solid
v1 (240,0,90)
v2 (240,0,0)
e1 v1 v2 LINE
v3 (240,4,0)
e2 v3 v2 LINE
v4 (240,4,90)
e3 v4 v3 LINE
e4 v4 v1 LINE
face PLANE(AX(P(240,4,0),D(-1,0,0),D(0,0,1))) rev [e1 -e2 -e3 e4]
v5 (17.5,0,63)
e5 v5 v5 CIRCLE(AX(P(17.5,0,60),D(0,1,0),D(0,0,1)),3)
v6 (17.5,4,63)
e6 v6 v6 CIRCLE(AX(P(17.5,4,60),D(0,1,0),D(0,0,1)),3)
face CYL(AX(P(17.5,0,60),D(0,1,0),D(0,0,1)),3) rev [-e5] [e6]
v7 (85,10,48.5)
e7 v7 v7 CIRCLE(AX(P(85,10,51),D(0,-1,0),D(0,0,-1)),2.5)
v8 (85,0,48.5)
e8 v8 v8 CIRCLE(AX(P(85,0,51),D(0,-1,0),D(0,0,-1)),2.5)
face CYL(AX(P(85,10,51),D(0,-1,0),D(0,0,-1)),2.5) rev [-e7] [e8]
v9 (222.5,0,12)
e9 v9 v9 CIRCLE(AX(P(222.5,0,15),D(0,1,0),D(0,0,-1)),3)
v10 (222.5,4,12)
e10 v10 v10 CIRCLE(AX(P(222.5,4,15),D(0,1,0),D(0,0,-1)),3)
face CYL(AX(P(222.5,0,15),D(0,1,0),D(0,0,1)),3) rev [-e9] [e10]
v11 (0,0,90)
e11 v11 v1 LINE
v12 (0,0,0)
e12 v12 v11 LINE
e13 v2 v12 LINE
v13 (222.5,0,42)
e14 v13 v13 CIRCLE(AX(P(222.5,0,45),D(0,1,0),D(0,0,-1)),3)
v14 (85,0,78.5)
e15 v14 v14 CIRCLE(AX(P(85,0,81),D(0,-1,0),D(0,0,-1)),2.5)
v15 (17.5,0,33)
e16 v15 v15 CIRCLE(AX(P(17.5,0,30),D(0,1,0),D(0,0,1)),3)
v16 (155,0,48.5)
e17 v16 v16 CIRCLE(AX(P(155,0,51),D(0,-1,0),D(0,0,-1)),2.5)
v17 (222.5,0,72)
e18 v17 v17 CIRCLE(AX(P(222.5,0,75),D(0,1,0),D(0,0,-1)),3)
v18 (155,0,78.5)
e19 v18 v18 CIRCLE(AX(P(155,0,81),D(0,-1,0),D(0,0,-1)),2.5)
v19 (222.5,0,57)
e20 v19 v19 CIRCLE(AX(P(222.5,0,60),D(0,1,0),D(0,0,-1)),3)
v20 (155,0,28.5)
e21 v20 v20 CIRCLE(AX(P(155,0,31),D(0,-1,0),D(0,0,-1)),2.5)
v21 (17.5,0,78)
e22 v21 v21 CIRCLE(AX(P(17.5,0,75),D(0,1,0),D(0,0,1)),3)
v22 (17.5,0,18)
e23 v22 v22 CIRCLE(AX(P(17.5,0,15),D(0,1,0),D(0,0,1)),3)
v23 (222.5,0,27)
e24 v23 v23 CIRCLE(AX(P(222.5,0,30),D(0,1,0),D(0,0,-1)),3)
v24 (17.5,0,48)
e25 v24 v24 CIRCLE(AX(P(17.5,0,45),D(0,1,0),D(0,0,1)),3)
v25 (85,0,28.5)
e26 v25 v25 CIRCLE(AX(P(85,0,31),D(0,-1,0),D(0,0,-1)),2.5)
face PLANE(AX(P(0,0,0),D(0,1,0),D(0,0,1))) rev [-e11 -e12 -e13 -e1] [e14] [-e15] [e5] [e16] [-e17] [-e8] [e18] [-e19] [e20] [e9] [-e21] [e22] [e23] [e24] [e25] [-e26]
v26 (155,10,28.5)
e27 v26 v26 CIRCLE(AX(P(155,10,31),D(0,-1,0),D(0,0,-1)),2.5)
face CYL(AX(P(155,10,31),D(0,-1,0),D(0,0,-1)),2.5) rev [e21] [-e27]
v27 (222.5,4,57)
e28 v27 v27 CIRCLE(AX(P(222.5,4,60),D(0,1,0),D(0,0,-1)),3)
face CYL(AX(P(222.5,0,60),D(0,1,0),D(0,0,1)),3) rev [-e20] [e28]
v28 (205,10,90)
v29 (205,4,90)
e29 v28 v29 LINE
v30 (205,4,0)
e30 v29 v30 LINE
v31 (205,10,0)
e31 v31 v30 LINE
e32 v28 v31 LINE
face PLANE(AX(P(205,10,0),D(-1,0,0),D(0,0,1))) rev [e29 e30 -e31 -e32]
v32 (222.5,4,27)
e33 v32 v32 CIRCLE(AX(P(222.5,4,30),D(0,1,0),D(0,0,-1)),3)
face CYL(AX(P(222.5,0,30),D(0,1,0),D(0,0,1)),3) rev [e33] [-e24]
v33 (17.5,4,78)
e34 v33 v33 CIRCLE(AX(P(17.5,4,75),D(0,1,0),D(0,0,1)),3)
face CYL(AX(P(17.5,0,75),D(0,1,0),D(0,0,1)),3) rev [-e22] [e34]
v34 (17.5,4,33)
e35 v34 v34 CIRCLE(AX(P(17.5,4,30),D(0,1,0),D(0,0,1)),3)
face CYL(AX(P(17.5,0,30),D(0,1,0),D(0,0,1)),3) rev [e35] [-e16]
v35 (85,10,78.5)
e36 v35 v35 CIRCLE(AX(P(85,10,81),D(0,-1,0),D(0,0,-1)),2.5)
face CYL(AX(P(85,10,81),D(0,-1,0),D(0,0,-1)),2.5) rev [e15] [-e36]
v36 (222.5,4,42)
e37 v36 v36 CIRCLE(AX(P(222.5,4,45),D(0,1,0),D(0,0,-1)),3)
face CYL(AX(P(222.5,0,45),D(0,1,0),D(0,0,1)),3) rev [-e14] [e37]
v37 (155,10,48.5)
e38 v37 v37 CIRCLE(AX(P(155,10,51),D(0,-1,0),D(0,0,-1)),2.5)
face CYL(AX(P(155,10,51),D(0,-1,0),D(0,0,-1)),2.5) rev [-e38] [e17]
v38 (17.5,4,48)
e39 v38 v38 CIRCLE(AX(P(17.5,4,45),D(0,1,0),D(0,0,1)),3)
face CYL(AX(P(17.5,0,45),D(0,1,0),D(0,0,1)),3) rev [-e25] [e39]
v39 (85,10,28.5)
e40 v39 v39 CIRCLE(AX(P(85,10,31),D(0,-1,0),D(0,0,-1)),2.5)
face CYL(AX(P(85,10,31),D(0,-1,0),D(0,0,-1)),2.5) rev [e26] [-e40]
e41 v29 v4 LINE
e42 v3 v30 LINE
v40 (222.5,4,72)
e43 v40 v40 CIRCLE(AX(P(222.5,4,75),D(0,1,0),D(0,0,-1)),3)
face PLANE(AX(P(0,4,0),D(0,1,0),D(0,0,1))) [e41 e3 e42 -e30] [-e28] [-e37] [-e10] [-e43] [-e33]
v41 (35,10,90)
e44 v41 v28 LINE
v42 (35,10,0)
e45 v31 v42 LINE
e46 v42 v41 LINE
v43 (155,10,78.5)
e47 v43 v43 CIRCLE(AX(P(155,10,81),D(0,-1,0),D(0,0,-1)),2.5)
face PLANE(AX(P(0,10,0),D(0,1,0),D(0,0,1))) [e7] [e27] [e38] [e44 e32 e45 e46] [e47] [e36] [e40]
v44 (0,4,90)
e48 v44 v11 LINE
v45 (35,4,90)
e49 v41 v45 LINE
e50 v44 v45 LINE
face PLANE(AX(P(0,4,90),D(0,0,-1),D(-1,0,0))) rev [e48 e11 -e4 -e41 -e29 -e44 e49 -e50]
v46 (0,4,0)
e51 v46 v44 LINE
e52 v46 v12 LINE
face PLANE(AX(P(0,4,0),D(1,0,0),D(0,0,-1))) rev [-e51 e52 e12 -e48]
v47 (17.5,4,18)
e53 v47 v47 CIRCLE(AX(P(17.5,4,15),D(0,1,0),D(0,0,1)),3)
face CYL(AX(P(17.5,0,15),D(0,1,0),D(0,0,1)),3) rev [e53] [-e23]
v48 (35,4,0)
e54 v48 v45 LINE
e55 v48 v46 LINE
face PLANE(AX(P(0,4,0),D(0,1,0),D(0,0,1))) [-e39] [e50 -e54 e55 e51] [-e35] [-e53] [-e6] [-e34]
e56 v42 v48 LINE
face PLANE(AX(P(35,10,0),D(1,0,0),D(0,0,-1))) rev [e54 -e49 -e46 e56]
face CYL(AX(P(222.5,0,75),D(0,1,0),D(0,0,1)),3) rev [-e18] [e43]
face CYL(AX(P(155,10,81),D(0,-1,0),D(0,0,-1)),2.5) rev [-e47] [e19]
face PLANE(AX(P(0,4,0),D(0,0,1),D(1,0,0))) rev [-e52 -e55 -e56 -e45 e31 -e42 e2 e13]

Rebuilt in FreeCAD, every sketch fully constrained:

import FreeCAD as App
import Part
import Sketcher

doc = App.newDocument("Part")
params = doc.addObject("Spreadsheet::Sheet", "Params")
for row, (alias, value) in enumerate([
    ("sketch1_width", "240 mm"),
    ("sketch1_height", "90 mm"),
    ("pad1_length", "4 mm"),
    ("sketch2_width", "170 mm"),
    ("sketch2_height", "90 mm"),
    ("pad2_length", "6 mm"),
    ("sketch3_diameter", "6 mm"),
    ("sketch4_diameter", "5 mm"),
], start=1):
    params.set(f"A{row}", alias)
    params.set(f"B{row}", "=" + value)
    params.setAlias(f"B{row}", alias)

body = doc.addObject("PartDesign::Body", "Body")

# Sketch on XZ plane
sketch1 = doc.addObject("Sketcher::SketchObject", "Sketch")
body.addObject(sketch1)
sketch1.AttachmentSupport = (doc.XZ_Plane, [""])
sketch1.MapMode = "FlatFace"
sketch1.addGeometry([
    Part.LineSegment(App.Vector(0, 0, 0), App.Vector(0, 90, 0)),
    Part.LineSegment(App.Vector(0, 90, 0), App.Vector(240, 90, 0)),
    Part.LineSegment(App.Vector(240, 90, 0), App.Vector(240, 0, 0)),
    Part.LineSegment(App.Vector(240, 0, 0), App.Vector(0, 0, 0)),
], False)
sketch1.addConstraint([
    Sketcher.Constraint("Coincident", 0, 2, 1, 1),
    Sketcher.Constraint("Coincident", 1, 2, 2, 1),
    Sketcher.Constraint("Coincident", 2, 2, 3, 1),
    Sketcher.Constraint("Coincident", 3, 2, 0, 1),
    Sketcher.Constraint("Vertical", 0),
    Sketcher.Constraint("Horizontal", 1),
    Sketcher.Constraint("Vertical", 2),
    Sketcher.Constraint("Horizontal", 3),
    Sketcher.Constraint("Coincident", 3, 2, -1, 1),
    Sketcher.Constraint("DistanceX", 1, 1, 1, 2, 240.0),
    Sketcher.Constraint("DistanceY", 0, 1, 0, 2, 90.0),
])
sketch1.setExpression("Constraints[9]", "Params.sketch1_width")
sketch1.setExpression("Constraints[10]", "Params.sketch1_height")
pad1 = doc.addObject("PartDesign::Pad", "Pad")
body.addObject(pad1)
pad1.Profile = sketch1
pad1.setExpression("Length", "Params.pad1_length")
pad1.Reversed = True

# Sketch on XZ plane
sketch2 = doc.addObject("Sketcher::SketchObject", "Sketch001")
body.addObject(sketch2)
sketch2.AttachmentSupport = (doc.XZ_Plane, [""])
sketch2.MapMode = "FlatFace"
sketch2.AttachmentOffset = App.Placement(App.Vector(0, 0, -4), App.Rotation())
sketch2.addGeometry([
    Part.LineSegment(App.Vector(35, 0, 0), App.Vector(35, 90, 0)),
    Part.LineSegment(App.Vector(35, 90, 0), App.Vector(205, 90, 0)),
    Part.LineSegment(App.Vector(205, 90, 0), App.Vector(205, 0, 0)),
    Part.LineSegment(App.Vector(205, 0, 0), App.Vector(35, 0, 0)),
], False)
sketch2.addConstraint([
    Sketcher.Constraint("Coincident", 0, 2, 1, 1),
    Sketcher.Constraint("Coincident", 1, 2, 2, 1),
    Sketcher.Constraint("Coincident", 2, 2, 3, 1),
    Sketcher.Constraint("Coincident", 3, 2, 0, 1),
    Sketcher.Constraint("Vertical", 0),
    Sketcher.Constraint("Horizontal", 1),
    Sketcher.Constraint("Vertical", 2),
    Sketcher.Constraint("Horizontal", 3),
    Sketcher.Constraint("PointOnObject", 2, 2, -1),
    Sketcher.Constraint("DistanceX", 1, 1, 1, 2, 170.0),
    Sketcher.Constraint("DistanceY", 0, 1, 0, 2, 90.0),
    Sketcher.Constraint("DistanceX", -1, 1, 0, 2, 35.0),
])
sketch2.setExpression("Constraints[9]", "Params.sketch2_width")
sketch2.setExpression("Constraints[10]", "Params.sketch2_height")
pad2 = doc.addObject("PartDesign::Pad", "Pad001")
body.addObject(pad2)
pad2.Profile = sketch2
pad2.setExpression("Length", "Params.pad2_length")
pad2.Reversed = True

# Sketch on XZ plane
sketch3 = doc.addObject("Sketcher::SketchObject", "Sketch002")
body.addObject(sketch3)
sketch3.AttachmentSupport = (doc.XZ_Plane, [""])
sketch3.MapMode = "FlatFace"
sketch3.AttachmentOffset = App.Placement(App.Vector(0, 0, -4), App.Rotation())
sketch3.addGeometry([
    Part.Circle(App.Vector(17.5, 15, 0), App.Vector(0, 0, 1), 3),  # 0
    Part.Circle(App.Vector(17.5, 30, 0), App.Vector(0, 0, 1), 3),  # 1
    Part.Circle(App.Vector(17.5, 45, 0), App.Vector(0, 0, 1), 3),  # 2
    Part.Circle(App.Vector(17.5, 60, 0), App.Vector(0, 0, 1), 3),  # 3
    Part.Circle(App.Vector(17.5, 75, 0), App.Vector(0, 0, 1), 3),  # 4
    Part.Circle(App.Vector(222.5, 75, 0), App.Vector(0, 0, 1), 3),  # 5
    Part.Circle(App.Vector(222.5, 60, 0), App.Vector(0, 0, 1), 3),  # 6
    Part.Circle(App.Vector(222.5, 45, 0), App.Vector(0, 0, 1), 3),  # 7
    Part.Circle(App.Vector(222.5, 30, 0), App.Vector(0, 0, 1), 3),  # 8
    Part.Circle(App.Vector(222.5, 15, 0), App.Vector(0, 0, 1), 3),  # 9
], False)
sketch3.addConstraint([
    Sketcher.Constraint("Equal", 0, 1),
    Sketcher.Constraint("Equal", 1, 2),
    Sketcher.Constraint("Equal", 2, 3),
    Sketcher.Constraint("Equal", 3, 4),
    Sketcher.Constraint("Equal", 4, 5),
    Sketcher.Constraint("Equal", 5, 6),
    Sketcher.Constraint("Equal", 6, 7),
    Sketcher.Constraint("Equal", 7, 8),
    Sketcher.Constraint("Equal", 8, 9),
    Sketcher.Constraint("Horizontal", 4, 3, 5, 3),
    Sketcher.Constraint("Horizontal", 3, 3, 6, 3),
    Sketcher.Constraint("Horizontal", 2, 3, 7, 3),
    Sketcher.Constraint("Horizontal", 1, 3, 8, 3),
    Sketcher.Constraint("Horizontal", 0, 3, 9, 3),
    Sketcher.Constraint("Vertical", 0, 3, 1, 3),
    Sketcher.Constraint("Vertical", 1, 3, 2, 3),
    Sketcher.Constraint("Vertical", 2, 3, 3, 3),
    Sketcher.Constraint("Vertical", 3, 3, 4, 3),
    Sketcher.Constraint("Vertical", 5, 3, 6, 3),
    Sketcher.Constraint("Vertical", 6, 3, 7, 3),
    Sketcher.Constraint("Vertical", 7, 3, 8, 3),
    Sketcher.Constraint("Vertical", 8, 3, 9, 3),
    Sketcher.Constraint("Diameter", 0, 6.0),
    Sketcher.Constraint("DistanceY", -1, 1, 0, 3, 15.0),
    Sketcher.Constraint("DistanceY", -1, 1, 1, 3, 30.0),
    Sketcher.Constraint("DistanceY", -1, 1, 2, 3, 45.0),
    Sketcher.Constraint("DistanceY", -1, 1, 3, 3, 60.0),
    Sketcher.Constraint("DistanceY", -1, 1, 4, 3, 75.0),
    Sketcher.Constraint("DistanceX", 4, 3, 5, 3, 205.0),
    Sketcher.Constraint("DistanceX", -1, 1, 0, 3, 17.5),
])
sketch3.setExpression("Constraints[22]", "Params.sketch3_diameter")
pocket1 = doc.addObject("PartDesign::Pocket", "Pocket")
body.addObject(pocket1)
pocket1.Profile = sketch3
pocket1.Type = "ThroughAll"
pocket1.Reversed = True

# Sketch on XZ plane
sketch4 = doc.addObject("Sketcher::SketchObject", "Sketch003")
body.addObject(sketch4)
sketch4.AttachmentSupport = (doc.XZ_Plane, [""])
sketch4.MapMode = "FlatFace"
sketch4.addGeometry([
    Part.Circle(App.Vector(85, 81, 0), App.Vector(0, 0, 1), 2.5),  # 0
    Part.Circle(App.Vector(155, 81, 0), App.Vector(0, 0, 1), 2.5),  # 1
    Part.Circle(App.Vector(85, 31, 0), App.Vector(0, 0, 1), 2.5),  # 2
    Part.Circle(App.Vector(155, 31, 0), App.Vector(0, 0, 1), 2.5),  # 3
    Part.Circle(App.Vector(85, 51, 0), App.Vector(0, 0, 1), 2.5),  # 4
    Part.Circle(App.Vector(155, 51, 0), App.Vector(0, 0, 1), 2.5),  # 5
], False)
sketch4.addConstraint([
    Sketcher.Constraint("Equal", 0, 1),
    Sketcher.Constraint("Equal", 1, 2),
    Sketcher.Constraint("Equal", 2, 3),
    Sketcher.Constraint("Equal", 3, 4),
    Sketcher.Constraint("Equal", 4, 5),
    Sketcher.Constraint("Horizontal", 0, 3, 1, 3),
    Sketcher.Constraint("Horizontal", 2, 3, 3, 3),
    Sketcher.Constraint("Horizontal", 4, 3, 5, 3),
    Sketcher.Constraint("Vertical", 0, 3, 2, 3),
    Sketcher.Constraint("Vertical", 1, 3, 3, 3),
    Sketcher.Constraint("Vertical", 2, 3, 4, 3),
    Sketcher.Constraint("Vertical", 3, 3, 5, 3),
    Sketcher.Constraint("Diameter", 0, 5.0),
    Sketcher.Constraint("DistanceX", -1, 1, 0, 3, 85.0),
    Sketcher.Constraint("DistanceY", -1, 1, 0, 3, 81.0),
    Sketcher.Constraint("DistanceX", -1, 1, 1, 3, 155.0),
    Sketcher.Constraint("DistanceY", -1, 1, 2, 3, 31.0),
    Sketcher.Constraint("DistanceY", -1, 1, 4, 3, 51.0),
])
sketch4.setExpression("Constraints[12]", "Params.sketch4_diameter")
pocket2 = doc.addObject("PartDesign::Pocket", "Pocket001")
body.addObject(pocket2)
pocket2.Profile = sketch4
pocket2.Type = "ThroughAll"

doc.recompute()
